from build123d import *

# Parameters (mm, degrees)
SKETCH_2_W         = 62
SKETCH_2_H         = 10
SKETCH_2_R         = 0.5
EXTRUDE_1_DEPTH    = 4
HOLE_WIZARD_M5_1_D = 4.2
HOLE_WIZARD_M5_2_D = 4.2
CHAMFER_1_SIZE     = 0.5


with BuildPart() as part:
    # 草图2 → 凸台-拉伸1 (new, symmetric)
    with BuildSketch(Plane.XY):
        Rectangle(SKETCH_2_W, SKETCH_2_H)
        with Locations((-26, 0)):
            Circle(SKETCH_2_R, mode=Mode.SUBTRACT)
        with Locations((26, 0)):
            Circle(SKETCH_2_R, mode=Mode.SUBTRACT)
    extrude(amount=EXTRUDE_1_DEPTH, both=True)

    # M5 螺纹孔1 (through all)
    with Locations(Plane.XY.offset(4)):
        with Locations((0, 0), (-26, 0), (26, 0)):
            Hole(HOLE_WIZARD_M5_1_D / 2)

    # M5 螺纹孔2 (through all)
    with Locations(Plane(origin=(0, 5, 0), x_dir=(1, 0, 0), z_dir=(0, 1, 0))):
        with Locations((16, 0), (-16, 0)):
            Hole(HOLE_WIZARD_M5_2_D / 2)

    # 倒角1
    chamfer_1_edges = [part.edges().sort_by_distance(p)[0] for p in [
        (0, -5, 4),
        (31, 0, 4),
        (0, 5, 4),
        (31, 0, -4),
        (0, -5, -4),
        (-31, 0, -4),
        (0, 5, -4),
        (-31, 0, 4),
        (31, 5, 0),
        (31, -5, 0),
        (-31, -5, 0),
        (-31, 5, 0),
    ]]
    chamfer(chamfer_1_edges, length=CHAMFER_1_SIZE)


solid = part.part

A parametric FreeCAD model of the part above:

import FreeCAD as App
import Part
import Sketcher

V = App.Vector


def edges_at(feature, points):
    """Names of the edges that pass closest to the given points."""
    edges = feature.Shape.Edges
    near = lambda p: min(range(len(edges)), key=lambda i: edges[i].distToShape(Part.Vertex(*p))[0])
    return sorted({f"Edge{near(p) + 1}" for p in points})

doc = App.newDocument("Part")
body = doc.addObject("PartDesign::Body", "Body")

sketch1 = doc.addObject("Sketcher::SketchObject", "Sketch")
body.addObject(sketch1)
sketch1.AttachmentSupport = (doc.XY_Plane, [""])
sketch1.MapMode = "FlatFace"
sketch1.addGeometry(Part.LineSegment(V(-31, 5, 0), V(-31, -5, 0)), False)
sketch1.addGeometry(Part.LineSegment(V(-31, -5, 0), V(31, -5, 0)), False)
sketch1.addGeometry(Part.LineSegment(V(31, -5, 0), V(31, 5, 0)), False)
sketch1.addGeometry(Part.LineSegment(V(31, 5, 0), V(-31, 5, 0)), False)
sketch1.addGeometry(Part.Circle(V(-26, 0, 0), V(0, 0, 1), 0.5), False)
sketch1.addGeometry(Part.Circle(V(26, 0, 0), V(0, 0, 1), 0.5), False)
sketch1.addConstraint(Sketcher.Constraint("Coincident", 0, 2, 1, 1))
sketch1.addConstraint(Sketcher.Constraint("Coincident", 1, 2, 2, 1))
sketch1.addConstraint(Sketcher.Constraint("Coincident", 2, 2, 3, 1))
sketch1.addConstraint(Sketcher.Constraint("Coincident", 3, 2, 0, 1))
sketch1.addConstraint(Sketcher.Constraint("Vertical", 0))
sketch1.addConstraint(Sketcher.Constraint("Horizontal", 1))
sketch1.addConstraint(Sketcher.Constraint("Vertical", 2))
sketch1.addConstraint(Sketcher.Constraint("Horizontal", 3))
sketch1.addConstraint(Sketcher.Constraint("Equal", 4, 5))
sketch1.addConstraint(Sketcher.Constraint("Symmetric", 4, 3, 5, 3, -1, 1))
sketch1.addConstraint(Sketcher.Constraint("Symmetric", 0, 2, 2, 2, -1, 1))
sketch1.addConstraint(Sketcher.Constraint("PointOnObject", 4, 3, -1))
sketch1.addConstraint(Sketcher.Constraint("Diameter", 4, 1.0))
sketch1.addConstraint(Sketcher.Constraint("DistanceX", 1, 1, 1, 2, 62.0))
sketch1.addConstraint(Sketcher.Constraint("DistanceY", 0, 2, 0, 1, 10.0))
sketch1.addConstraint(Sketcher.Constraint("DistanceX", 4, 3, -1, 1, 26.0))
pad1 = doc.addObject("PartDesign::Pad", "Pad")
body.addObject(pad1)
pad1.Profile = sketch1
pad1.Length = 8
pad1.Midplane = True

sketch2 = doc.addObject("Sketcher::SketchObject", "Sketch001")
body.addObject(sketch2)
sketch2.AttachmentSupport = (doc.XY_Plane, [""])
sketch2.MapMode = "FlatFace"
sketch2.AttachmentOffset = App.Placement(V(0, 0, 4), App.Rotation())
sketch2.addGeometry(Part.Circle(V(0, 0, 0), V(0, 0, 1), 2.1), False)
sketch2.addGeometry(Part.Circle(V(-26, 0, 0), V(0, 0, 1), 2.1), False)
sketch2.addGeometry(Part.Circle(V(26, 0, 0), V(0, 0, 1), 2.1), False)
sketch2.addConstraint(Sketcher.Constraint("Coincident", 0, 3, -1, 1))
sketch2.addConstraint(Sketcher.Constraint("Equal", 0, 1))
sketch2.addConstraint(Sketcher.Constraint("Equal", 1, 2))
sketch2.addConstraint(Sketcher.Constraint("Symmetric", 1, 3, 2, 3, -1, 1))
sketch2.addConstraint(Sketcher.Constraint("PointOnObject", 1, 3, -1))
sketch2.addConstraint(Sketcher.Constraint("Diameter", 0, 4.2))
sketch2.addConstraint(Sketcher.Constraint("DistanceX", 1, 3, -1, 1, 26.0))
doc.recompute()
hole = doc.addObject("PartDesign::Hole", "Hole")
body.addObject(hole)
hole.Profile = sketch2
hole.ThreadType = "None"
hole.Diameter = 4.2
hole.DepthType = "ThroughAll"

sketch3 = doc.addObject("Sketcher::SketchObject", "Sketch002")
body.addObject(sketch3)
sketch3.AttachmentSupport = (doc.XZ_Plane, [""])
sketch3.MapMode = "FlatFace"
sketch3.AttachmentOffset = App.Placement(V(0, 0, -5), App.Rotation())
sketch3.addGeometry(Part.Circle(V(16, 0, 0), V(0, 0, 1), 2.1), False)
sketch3.addGeometry(Part.Circle(V(-16, 0, 0), V(0, 0, 1), 2.1), False)
sketch3.addConstraint(Sketcher.Constraint("Equal", 0, 1))
sketch3.addConstraint(Sketcher.Constraint("Symmetric", 0, 3, 1, 3, -1, 1))
sketch3.addConstraint(Sketcher.Constraint("PointOnObject", 0, 3, -1))
sketch3.addConstraint(Sketcher.Constraint("Diameter", 0, 4.2))
sketch3.addConstraint(Sketcher.Constraint("DistanceX", -1, 1, 0, 3, 16.0))
doc.recompute()
hole2 = doc.addObject("PartDesign::Hole", "Hole001")
body.addObject(hole2)
hole2.Profile = sketch3
hole2.ThreadType = "None"
hole2.Diameter = 4.2
hole2.DepthType = "ThroughAll"
hole2.Reversed = True
doc.recompute()

chamfer = doc.addObject("PartDesign::Chamfer", "Chamfer")
body.addObject(chamfer)
chamfer.Base = (hole2, edges_at(hole2, [
    (0, -5, 4),
    (31, 0, 4),
    (0, 5, 4),
    (31, 0, -4),
    (0, -5, -4),
    (-31, 0, -4),
    (0, 5, -4),
    (-31, 0, 4),
    (31, 5, 0),
    (31, -5, 0),
    (-31, -5, 0),
    (-31, 5, 0),
]))
chamfer.Size = 0.5

doc.recompute()
